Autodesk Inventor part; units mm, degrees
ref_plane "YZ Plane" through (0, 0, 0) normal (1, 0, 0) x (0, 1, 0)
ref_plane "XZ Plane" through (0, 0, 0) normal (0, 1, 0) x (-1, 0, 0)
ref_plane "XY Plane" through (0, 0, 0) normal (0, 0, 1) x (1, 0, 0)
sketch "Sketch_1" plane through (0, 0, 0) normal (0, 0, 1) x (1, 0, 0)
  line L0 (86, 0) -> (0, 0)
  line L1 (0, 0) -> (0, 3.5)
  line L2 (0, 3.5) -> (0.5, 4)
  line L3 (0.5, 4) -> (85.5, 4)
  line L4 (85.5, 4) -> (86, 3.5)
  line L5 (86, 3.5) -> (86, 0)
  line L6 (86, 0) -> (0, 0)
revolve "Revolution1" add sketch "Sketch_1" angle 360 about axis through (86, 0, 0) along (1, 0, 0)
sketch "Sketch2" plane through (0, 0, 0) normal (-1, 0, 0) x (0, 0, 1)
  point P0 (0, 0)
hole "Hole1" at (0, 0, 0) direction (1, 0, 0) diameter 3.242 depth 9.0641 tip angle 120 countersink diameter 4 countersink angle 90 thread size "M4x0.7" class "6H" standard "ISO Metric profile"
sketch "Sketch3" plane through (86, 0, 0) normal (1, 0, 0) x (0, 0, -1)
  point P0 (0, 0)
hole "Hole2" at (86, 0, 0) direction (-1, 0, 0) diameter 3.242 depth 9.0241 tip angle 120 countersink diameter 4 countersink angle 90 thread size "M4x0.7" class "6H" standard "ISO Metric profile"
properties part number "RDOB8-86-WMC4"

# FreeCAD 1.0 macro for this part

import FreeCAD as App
import Part
import Sketcher

V = App.Vector
Q = App.Units.Quantity

doc = App.newDocument("Part")
body = doc.addObject("PartDesign::Body", "Body")

sketch1 = body.newObject("Sketcher::SketchObject", "Sketch")
sketch1.AttachmentSupport = (doc.getObject("XY_Plane"), [""])
sketch1.MapMode = "FlatFace"
sketch1.addGeometry([
    Part.LineSegment(V(0, 0, 0), V(86, 0, 0)),
    Part.LineSegment(V(86, 0, 0), V(86, 3.5, 0)),
    Part.LineSegment(V(86, 3.5, 0), V(85.5, 4, 0)),
    Part.LineSegment(V(85.5, 4, 0), V(0.5, 4, 0)),
    Part.LineSegment(V(0.5, 4, 0), V(0, 3.5, 0)),
    Part.LineSegment(V(0, 3.5, 0), V(0, 0, 0)),
], False)
sketch1.addConstraint([
    Sketcher.Constraint("Coincident", 0, 2, 1, 1),
    Sketcher.Constraint("Coincident", 1, 2, 2, 1),
    Sketcher.Constraint("Coincident", 2, 2, 3, 1),
    Sketcher.Constraint("Coincident", 3, 2, 4, 1),
    Sketcher.Constraint("Coincident", 4, 2, 5, 1),
    Sketcher.Constraint("Coincident", 5, 2, 0, 1),
    Sketcher.Constraint("Horizontal", 0),
    Sketcher.Constraint("Vertical", 1),
    Sketcher.Constraint("Horizontal", 3),
    Sketcher.Constraint("Vertical", 5),
    Sketcher.Constraint("Coincident", 5, 2, -1, 1),
    Sketcher.Constraint("Perpendicular", 2, 4),
    Sketcher.Constraint("Horizontal", 1, 2, 4, 2),
    Sketcher.Constraint("Equal", 2, 4),
    Sketcher.Constraint("DistanceX", 0, 1, 0, 2, Q("86 mm")),
    Sketcher.Constraint("DistanceX", 3, 2, 3, 1, Q("85 mm")),
    Sketcher.Constraint("DistanceY", 1, 1, 1, 2, Q("3.5 mm")),
])
revolution = body.newObject("PartDesign::Revolution", "Revolution")
revolution.Profile = sketch1
revolution.ReferenceAxis = (sketch1, ["H_Axis"])
revolution.Angle = 360

sketch2 = body.newObject("Sketcher::SketchObject", "Sketch001")
sketch2.AttachmentSupport = (doc.getObject("YZ_Plane"), [""])
sketch2.MapMode = "FlatFace"
sketch2.addGeometry(Part.Circle(V(0, 0, 0), V(0, 0, 1), 1.621), False)
sketch2.addConstraint([
    Sketcher.Constraint("Coincident", 0, 3, -1, 1),
    Sketcher.Constraint("Diameter", 0, Q("3.242 mm")),
])
doc.recompute()
hole = body.newObject("PartDesign::Hole", "Hole")
hole.Profile = sketch2
hole.ThreadType = "None"
hole.Diameter = 3.242
hole.DepthType = "Dimension"
hole.Depth = 9.0641
hole.DrillPoint = "Angled"
hole.DrillPointAngle = 120
hole.HoleCutType = "Countersink"
hole.HoleCutDiameter = 4
hole.HoleCutCountersinkAngle = 90
hole.Reversed = True

sketch3 = body.newObject("Sketcher::SketchObject", "Sketch002")
sketch3.AttachmentSupport = (doc.getObject("YZ_Plane"), [""])
sketch3.MapMode = "FlatFace"
sketch3.AttachmentOffset = App.Placement(V(0, 0, 86), App.Rotation())
sketch3.addGeometry(Part.Circle(V(0, 0, 0), V(0, 0, 1), 1.621), False)
sketch3.addConstraint([
    Sketcher.Constraint("Coincident", 0, 3, -1, 1),
    Sketcher.Constraint("Diameter", 0, Q("3.242 mm")),
])
doc.recompute()
hole2 = body.newObject("PartDesign::Hole", "Hole001")
hole2.Profile = sketch3
hole2.ThreadType = "None"
hole2.Diameter = 3.242
hole2.DepthType = "Dimension"
hole2.Depth = 9.0241
hole2.DrillPoint = "Angled"
hole2.DrillPointAngle = 120
hole2.HoleCutType = "Countersink"
hole2.HoleCutDiameter = 4
hole2.HoleCutCountersinkAngle = 90

doc.recompute()
